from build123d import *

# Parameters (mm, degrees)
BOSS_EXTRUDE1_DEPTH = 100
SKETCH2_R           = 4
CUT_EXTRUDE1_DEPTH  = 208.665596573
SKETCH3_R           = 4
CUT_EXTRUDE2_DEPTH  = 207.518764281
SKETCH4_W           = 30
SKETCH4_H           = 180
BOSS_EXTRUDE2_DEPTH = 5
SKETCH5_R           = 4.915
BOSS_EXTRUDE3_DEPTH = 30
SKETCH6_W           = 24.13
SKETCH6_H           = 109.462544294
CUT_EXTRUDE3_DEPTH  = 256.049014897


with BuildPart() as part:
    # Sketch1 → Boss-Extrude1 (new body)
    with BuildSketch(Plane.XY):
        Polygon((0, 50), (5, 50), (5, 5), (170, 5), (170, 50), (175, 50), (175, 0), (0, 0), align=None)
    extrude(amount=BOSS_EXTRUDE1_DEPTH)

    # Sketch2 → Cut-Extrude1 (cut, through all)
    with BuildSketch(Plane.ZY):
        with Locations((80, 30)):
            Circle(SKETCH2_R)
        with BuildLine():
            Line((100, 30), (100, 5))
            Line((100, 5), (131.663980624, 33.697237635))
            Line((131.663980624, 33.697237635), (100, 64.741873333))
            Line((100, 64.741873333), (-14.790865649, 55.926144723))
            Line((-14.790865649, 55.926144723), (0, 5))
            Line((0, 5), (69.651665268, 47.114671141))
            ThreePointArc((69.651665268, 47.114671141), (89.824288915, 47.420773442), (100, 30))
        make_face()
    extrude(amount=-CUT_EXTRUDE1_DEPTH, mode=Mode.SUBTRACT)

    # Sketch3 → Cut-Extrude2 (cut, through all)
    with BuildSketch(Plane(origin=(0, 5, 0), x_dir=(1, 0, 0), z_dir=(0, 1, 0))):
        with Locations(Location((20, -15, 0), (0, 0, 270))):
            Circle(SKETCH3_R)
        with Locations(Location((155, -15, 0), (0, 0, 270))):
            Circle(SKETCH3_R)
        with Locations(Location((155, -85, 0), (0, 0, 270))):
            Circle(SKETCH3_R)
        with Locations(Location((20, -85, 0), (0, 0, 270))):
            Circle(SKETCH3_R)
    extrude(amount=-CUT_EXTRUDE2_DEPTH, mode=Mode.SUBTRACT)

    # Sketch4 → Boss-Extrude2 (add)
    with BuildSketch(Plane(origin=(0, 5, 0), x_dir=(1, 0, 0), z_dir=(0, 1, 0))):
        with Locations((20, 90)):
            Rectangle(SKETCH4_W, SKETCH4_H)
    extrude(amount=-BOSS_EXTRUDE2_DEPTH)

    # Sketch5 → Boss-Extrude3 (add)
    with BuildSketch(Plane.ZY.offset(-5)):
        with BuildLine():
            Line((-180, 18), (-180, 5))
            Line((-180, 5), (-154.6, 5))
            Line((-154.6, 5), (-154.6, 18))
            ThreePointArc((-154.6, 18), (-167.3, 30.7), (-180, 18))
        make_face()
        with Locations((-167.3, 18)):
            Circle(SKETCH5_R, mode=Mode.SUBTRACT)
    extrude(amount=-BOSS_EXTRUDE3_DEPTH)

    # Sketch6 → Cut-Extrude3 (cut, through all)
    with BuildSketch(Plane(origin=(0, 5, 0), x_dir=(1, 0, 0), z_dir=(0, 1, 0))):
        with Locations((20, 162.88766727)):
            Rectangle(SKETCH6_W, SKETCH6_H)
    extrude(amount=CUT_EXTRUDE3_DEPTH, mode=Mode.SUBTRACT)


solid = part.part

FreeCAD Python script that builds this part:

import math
import FreeCAD as App
import Part
import Sketcher
from FreeCAD import Vector
Q = App.Units.Quantity

doc = App.newDocument("Part")
body = doc.addObject("PartDesign::Body", "Body")

# Sketch on XY plane
sketch1 = body.newObject("Sketcher::SketchObject", "Sketch")
sketch1.AttachmentSupport = (doc.getObject("XY_Plane"), [""])
sketch1.MapMode = "FlatFace"
sketch1.addGeometry([
    Part.LineSegment(Vector(5, 50, 0), Vector(0, 50, 0)),  # 0
    Part.LineSegment(Vector(0, 50, 0), Vector(0, 0, 0)),  # 1
    Part.LineSegment(Vector(0, 0, 0), Vector(175, 0, 0)),  # 2
    Part.LineSegment(Vector(175, 0, 0), Vector(175, 50, 0)),  # 3
    Part.LineSegment(Vector(175, 50, 0), Vector(170, 50, 0)),  # 4
    Part.LineSegment(Vector(170, 50, 0), Vector(170, 5, 0)),  # 5
    Part.LineSegment(Vector(170, 5, 0), Vector(5, 5, 0)),  # 6
    Part.LineSegment(Vector(5, 5, 0), Vector(5, 50, 0)),  # 7
], False)
sketch1.addConstraint([
    Sketcher.Constraint("Coincident", 0, 2, 1, 1),
    Sketcher.Constraint("Coincident", 1, 2, 2, 1),
    Sketcher.Constraint("Coincident", 2, 2, 3, 1),
    Sketcher.Constraint("Coincident", 3, 2, 4, 1),
    Sketcher.Constraint("Coincident", 4, 2, 5, 1),
    Sketcher.Constraint("Coincident", 5, 2, 6, 1),
    Sketcher.Constraint("Coincident", 6, 2, 7, 1),
    Sketcher.Constraint("Coincident", 7, 2, 0, 1),
    Sketcher.Constraint("Horizontal", 0),
    Sketcher.Constraint("Vertical", 1),
    Sketcher.Constraint("Horizontal", 2),
    Sketcher.Constraint("Vertical", 3),
    Sketcher.Constraint("Horizontal", 4),
    Sketcher.Constraint("Vertical", 5),
    Sketcher.Constraint("Horizontal", 6),
    Sketcher.Constraint("Vertical", 7),
    Sketcher.Constraint("Coincident", 1, 2, -1, 1),
    Sketcher.Constraint("Horizontal", 0, 2, 3, 2),
    Sketcher.Constraint("Equal", 0, 4),
    Sketcher.Constraint("DistanceX", 0, 2, 0, 1, Q("5 mm")),
    Sketcher.Constraint("DistanceX", 2, 1, 2, 2, Q("175 mm")),
    Sketcher.Constraint("DistanceY", 1, 2, 1, 1, Q("50 mm")),
    Sketcher.Constraint("DistanceY", 5, 2, 5, 1, Q("45 mm")),
])
pad1 = body.newObject("PartDesign::Pad", "Pad")
pad1.Profile = sketch1
pad1.Length = 100

# Sketch on YZ plane
sketch2 = body.newObject("Sketcher::SketchObject", "Sketch001")
sketch2.AttachmentSupport = (doc.getObject("YZ_Plane"), [""])
sketch2.MapMode = "FlatFace"
sketch2.addGeometry([
    Part.Circle(Vector(30, 80, 0), Vector(0, 0, 1), 4),  # 0
    Part.LineSegment(Vector(30, 100, 0), Vector(5, 100, 0)),  # 1
    Part.LineSegment(Vector(5, 100, 0), Vector(33.7, 131.7, 0)),  # 2
    Part.LineSegment(Vector(33.7, 131.7, 0), Vector(64.7, 100, 0)),  # 3
    Part.LineSegment(Vector(64.7, 100, 0), Vector(55.9, -14.8, 0)),  # 4
    Part.LineSegment(Vector(55.9, -14.8, 0), Vector(5, 0, 0)),  # 5
    Part.LineSegment(Vector(5, 0, 0), Vector(47.1, 69.7, 0)),  # 6
    Part.ArcOfCircle(Part.Circle(Vector(30, 80, 0), Vector(0, 0, 1), 20), math.radians(-31), math.radians(90)),  # 7
], False)
sketch2.addConstraint([
    Sketcher.Constraint("Coincident", 1, 2, 2, 1),
    Sketcher.Constraint("Coincident", 2, 2, 3, 1),
    Sketcher.Constraint("Coincident", 3, 2, 4, 1),
    Sketcher.Constraint("Coincident", 4, 2, 5, 1),
    Sketcher.Constraint("Coincident", 5, 2, 6, 1),
    Sketcher.Constraint("Tangent", 6, 2, 7, 1),
    Sketcher.Constraint("Tangent", 7, 2, 1, 1),
    Sketcher.Constraint("Horizontal", 1),
    Sketcher.Constraint("Coincident", 7, 3, 0, 3),
    Sketcher.Constraint("PointOnObject", 5, 2, -1),
    Sketcher.Constraint("Horizontal", 1, 2, 3, 2),
    Sketcher.Constraint("Vertical", 1, 2, 5, 2),
    Sketcher.Constraint("Diameter", 0, Q("8 mm")),
    Sketcher.Constraint("Radius", 7, Q("20 mm")),
    Sketcher.Constraint("DistanceX", 1, 2, 1, 1, Q("25 mm")),
    Sketcher.Constraint("DistanceX", -1, 1, 0, 3, Q("30 mm")),
    Sketcher.Constraint("DistanceY", -1, 1, 0, 3, Q("80 mm")),
    Sketcher.Constraint("Distance", 2, Q("42.733349 mm")),
    Sketcher.Constraint("Distance", 3, Q("44.34385 mm")),
    Sketcher.Constraint("DistanceY", -1, 1, 2, 2, Q("131.663981 mm")),
    Sketcher.Constraint("DistanceX", 4, 2, 3, 2, Q("8.815729 mm")),
    Sketcher.Constraint("Distance", 4, Q("115.128884 mm")),
])
pocket1 = body.newObject("PartDesign::Pocket", "Pocket")
pocket1.Profile = sketch2
pocket1.Type = "ThroughAll"
pocket1.Reversed = True

# Sketch on XZ plane
sketch3 = body.newObject("Sketcher::SketchObject", "Sketch002")
sketch3.AttachmentSupport = (doc.getObject("XZ_Plane"), [""])
sketch3.MapMode = "FlatFace"
sketch3.AttachmentOffset = App.Placement(Vector(0, 0, -5), App.Rotation())
sketch3.addGeometry([
    Part.Circle(Vector(20, 15, 0), Vector(0, 0, 1), 4),
    Part.Circle(Vector(155, 15, 0), Vector(0, 0, 1), 4),
    Part.Circle(Vector(155, 85, 0), Vector(0, 0, 1), 4),
    Part.Circle(Vector(20, 85, 0), Vector(0, 0, 1), 4),
], False)
sketch3.addConstraint([
    Sketcher.Constraint("Equal", 0, 1),
    Sketcher.Constraint("Equal", 1, 2),
    Sketcher.Constraint("Equal", 2, 3),
    Sketcher.Constraint("Horizontal", 0, 3, 1, 3),
    Sketcher.Constraint("Horizontal", 2, 3, 3, 3),
    Sketcher.Constraint("Vertical", 1, 3, 2, 3),
    Sketcher.Constraint("Vertical", 0, 3, 3, 3),
    Sketcher.Constraint("Diameter", 0, Q("8 mm")),
    Sketcher.Constraint("DistanceX", -1, 1, 0, 3, Q("20 mm")),
    Sketcher.Constraint("DistanceY", -1, 1, 0, 3, Q("15 mm")),
    Sketcher.Constraint("DistanceX", -1, 1, 1, 3, Q("155 mm")),
    Sketcher.Constraint("DistanceY", -1, 1, 2, 3, Q("85 mm")),
])
pocket2 = body.newObject("PartDesign::Pocket", "Pocket001")
pocket2.Profile = sketch3
pocket2.Type = "ThroughAll"
pocket2.Reversed = True

# Sketch on XZ plane
sketch4 = body.newObject("Sketcher::SketchObject", "Sketch003")
sketch4.AttachmentSupport = (doc.getObject("XZ_Plane"), [""])
sketch4.MapMode = "FlatFace"
sketch4.AttachmentOffset = App.Placement(Vector(0, 0, -5), App.Rotation())
sketch4.addGeometry([
    Part.LineSegment(Vector(5, -180, 0), Vector(5, 0, 0)),
    Part.LineSegment(Vector(5, 0, 0), Vector(35, 0, 0)),
    Part.LineSegment(Vector(35, 0, 0), Vector(35, -180, 0)),
    Part.LineSegment(Vector(35, -180, 0), Vector(5, -180, 0)),
], False)
sketch4.addConstraint([
    Sketcher.Constraint("Coincident", 0, 2, 1, 1),
    Sketcher.Constraint("Coincident", 1, 2, 2, 1),
    Sketcher.Constraint("Coincident", 2, 2, 3, 1),
    Sketcher.Constraint("Coincident", 3, 2, 0, 1),
    Sketcher.Constraint("Vertical", 0),
    Sketcher.Constraint("Horizontal", 1),
    Sketcher.Constraint("Vertical", 2),
    Sketcher.Constraint("Horizontal", 3),
    Sketcher.Constraint("PointOnObject", 0, 2, -1),
    Sketcher.Constraint("DistanceX", 1, 1, 1, 2, Q("30 mm")),
    Sketcher.Constraint("DistanceY", 0, 1, 0, 2, Q("180 mm")),
    Sketcher.Constraint("DistanceX", -1, 1, 0, 2, Q("5 mm")),
])
pad2 = body.newObject("PartDesign::Pad", "Pad001")
pad2.Profile = sketch4
pad2.Length = 5

# Sketch on YZ plane
sketch5 = body.newObject("Sketcher::SketchObject", "Sketch004")
sketch5.AttachmentSupport = (doc.getObject("YZ_Plane"), [""])
sketch5.MapMode = "FlatFace"
sketch5.AttachmentOffset = App.Placement(Vector(0, 0, 5), App.Rotation())
sketch5.addGeometry([
    Part.LineSegment(Vector(18, -180, 0), Vector(5, -180, 0)),  # 0
    Part.LineSegment(Vector(5, -180, 0), Vector(5, -154.6, 0)),  # 1
    Part.LineSegment(Vector(5, -154.6, 0), Vector(18, -154.6, 0)),  # 2
    Part.ArcOfCircle(Part.Circle(Vector(18, -167.3, 0), Vector(0, 0, 1), 12.7), math.radians(-90), math.radians(90)),  # 3
    Part.Circle(Vector(18, -167.3, 0), Vector(0, 0, 1), 4.9),  # 4
], False)
sketch5.addConstraint([
    Sketcher.Constraint("Coincident", 0, 2, 1, 1),
    Sketcher.Constraint("Coincident", 1, 2, 2, 1),
    Sketcher.Constraint("Tangent", 2, 2, 3, 2),
    Sketcher.Constraint("Tangent", 3, 1, 0, 1),
    Sketcher.Constraint("Horizontal", 0),
    Sketcher.Constraint("Vertical", 1),
    Sketcher.Constraint("Horizontal", 2),
    Sketcher.Constraint("Coincident", 4, 3, 3, 3),
    Sketcher.Constraint("Radius", 3, Q("12.7 mm")),
    Sketcher.Constraint("Diameter", 4, Q("9.83 mm")),
    Sketcher.Constraint("DistanceX", 0, 2, 0, 1, Q("13 mm")),
    Sketcher.Constraint("DistanceX", -1, 1, 3, 3, Q("18 mm")),
    Sketcher.Constraint("DistanceY", 0, 2, -1, 1, Q("180 mm")),
])
pad3 = body.newObject("PartDesign::Pad", "Pad002")
pad3.Profile = sketch5
pad3.Length = 30

# Sketch on XZ plane
sketch6 = body.newObject("Sketcher::SketchObject", "Sketch005")
sketch6.AttachmentSupport = (doc.getObject("XZ_Plane"), [""])
sketch6.MapMode = "FlatFace"
sketch6.AttachmentOffset = App.Placement(Vector(0, 0, -5), App.Rotation())
sketch6.addGeometry([
    Part.LineSegment(Vector(8, -218, 0), Vector(8, -108, 0)),
    Part.LineSegment(Vector(8, -108, 0), Vector(32, -108, 0)),
    Part.LineSegment(Vector(32, -108, 0), Vector(32, -218, 0)),
    Part.LineSegment(Vector(32, -218, 0), Vector(8, -218, 0)),
], False)
sketch6.addConstraint([
    Sketcher.Constraint("Coincident", 0, 2, 1, 1),
    Sketcher.Constraint("Coincident", 1, 2, 2, 1),
    Sketcher.Constraint("Coincident", 2, 2, 3, 1),
    Sketcher.Constraint("Coincident", 3, 2, 0, 1),
    Sketcher.Constraint("Vertical", 0),
    Sketcher.Constraint("Horizontal", 1),
    Sketcher.Constraint("Vertical", 2),
    Sketcher.Constraint("Horizontal", 3),
    Sketcher.Constraint("DistanceX", 1, 1, 1, 2, Q("24.13 mm")),
    Sketcher.Constraint("DistanceX", -1, 1, 0, 2, Q("7.935 mm")),
    Sketcher.Constraint("DistanceY", 0, 1, 0, 2, Q("109.462544 mm")),
    Sketcher.Constraint("DistanceY", 2, 2, -1, 1, Q("217.618939 mm")),
])
pocket3 = body.newObject("PartDesign::Pocket", "Pocket002")
pocket3.Profile = sketch6
pocket3.Type = "ThroughAll"

doc.recompute()
